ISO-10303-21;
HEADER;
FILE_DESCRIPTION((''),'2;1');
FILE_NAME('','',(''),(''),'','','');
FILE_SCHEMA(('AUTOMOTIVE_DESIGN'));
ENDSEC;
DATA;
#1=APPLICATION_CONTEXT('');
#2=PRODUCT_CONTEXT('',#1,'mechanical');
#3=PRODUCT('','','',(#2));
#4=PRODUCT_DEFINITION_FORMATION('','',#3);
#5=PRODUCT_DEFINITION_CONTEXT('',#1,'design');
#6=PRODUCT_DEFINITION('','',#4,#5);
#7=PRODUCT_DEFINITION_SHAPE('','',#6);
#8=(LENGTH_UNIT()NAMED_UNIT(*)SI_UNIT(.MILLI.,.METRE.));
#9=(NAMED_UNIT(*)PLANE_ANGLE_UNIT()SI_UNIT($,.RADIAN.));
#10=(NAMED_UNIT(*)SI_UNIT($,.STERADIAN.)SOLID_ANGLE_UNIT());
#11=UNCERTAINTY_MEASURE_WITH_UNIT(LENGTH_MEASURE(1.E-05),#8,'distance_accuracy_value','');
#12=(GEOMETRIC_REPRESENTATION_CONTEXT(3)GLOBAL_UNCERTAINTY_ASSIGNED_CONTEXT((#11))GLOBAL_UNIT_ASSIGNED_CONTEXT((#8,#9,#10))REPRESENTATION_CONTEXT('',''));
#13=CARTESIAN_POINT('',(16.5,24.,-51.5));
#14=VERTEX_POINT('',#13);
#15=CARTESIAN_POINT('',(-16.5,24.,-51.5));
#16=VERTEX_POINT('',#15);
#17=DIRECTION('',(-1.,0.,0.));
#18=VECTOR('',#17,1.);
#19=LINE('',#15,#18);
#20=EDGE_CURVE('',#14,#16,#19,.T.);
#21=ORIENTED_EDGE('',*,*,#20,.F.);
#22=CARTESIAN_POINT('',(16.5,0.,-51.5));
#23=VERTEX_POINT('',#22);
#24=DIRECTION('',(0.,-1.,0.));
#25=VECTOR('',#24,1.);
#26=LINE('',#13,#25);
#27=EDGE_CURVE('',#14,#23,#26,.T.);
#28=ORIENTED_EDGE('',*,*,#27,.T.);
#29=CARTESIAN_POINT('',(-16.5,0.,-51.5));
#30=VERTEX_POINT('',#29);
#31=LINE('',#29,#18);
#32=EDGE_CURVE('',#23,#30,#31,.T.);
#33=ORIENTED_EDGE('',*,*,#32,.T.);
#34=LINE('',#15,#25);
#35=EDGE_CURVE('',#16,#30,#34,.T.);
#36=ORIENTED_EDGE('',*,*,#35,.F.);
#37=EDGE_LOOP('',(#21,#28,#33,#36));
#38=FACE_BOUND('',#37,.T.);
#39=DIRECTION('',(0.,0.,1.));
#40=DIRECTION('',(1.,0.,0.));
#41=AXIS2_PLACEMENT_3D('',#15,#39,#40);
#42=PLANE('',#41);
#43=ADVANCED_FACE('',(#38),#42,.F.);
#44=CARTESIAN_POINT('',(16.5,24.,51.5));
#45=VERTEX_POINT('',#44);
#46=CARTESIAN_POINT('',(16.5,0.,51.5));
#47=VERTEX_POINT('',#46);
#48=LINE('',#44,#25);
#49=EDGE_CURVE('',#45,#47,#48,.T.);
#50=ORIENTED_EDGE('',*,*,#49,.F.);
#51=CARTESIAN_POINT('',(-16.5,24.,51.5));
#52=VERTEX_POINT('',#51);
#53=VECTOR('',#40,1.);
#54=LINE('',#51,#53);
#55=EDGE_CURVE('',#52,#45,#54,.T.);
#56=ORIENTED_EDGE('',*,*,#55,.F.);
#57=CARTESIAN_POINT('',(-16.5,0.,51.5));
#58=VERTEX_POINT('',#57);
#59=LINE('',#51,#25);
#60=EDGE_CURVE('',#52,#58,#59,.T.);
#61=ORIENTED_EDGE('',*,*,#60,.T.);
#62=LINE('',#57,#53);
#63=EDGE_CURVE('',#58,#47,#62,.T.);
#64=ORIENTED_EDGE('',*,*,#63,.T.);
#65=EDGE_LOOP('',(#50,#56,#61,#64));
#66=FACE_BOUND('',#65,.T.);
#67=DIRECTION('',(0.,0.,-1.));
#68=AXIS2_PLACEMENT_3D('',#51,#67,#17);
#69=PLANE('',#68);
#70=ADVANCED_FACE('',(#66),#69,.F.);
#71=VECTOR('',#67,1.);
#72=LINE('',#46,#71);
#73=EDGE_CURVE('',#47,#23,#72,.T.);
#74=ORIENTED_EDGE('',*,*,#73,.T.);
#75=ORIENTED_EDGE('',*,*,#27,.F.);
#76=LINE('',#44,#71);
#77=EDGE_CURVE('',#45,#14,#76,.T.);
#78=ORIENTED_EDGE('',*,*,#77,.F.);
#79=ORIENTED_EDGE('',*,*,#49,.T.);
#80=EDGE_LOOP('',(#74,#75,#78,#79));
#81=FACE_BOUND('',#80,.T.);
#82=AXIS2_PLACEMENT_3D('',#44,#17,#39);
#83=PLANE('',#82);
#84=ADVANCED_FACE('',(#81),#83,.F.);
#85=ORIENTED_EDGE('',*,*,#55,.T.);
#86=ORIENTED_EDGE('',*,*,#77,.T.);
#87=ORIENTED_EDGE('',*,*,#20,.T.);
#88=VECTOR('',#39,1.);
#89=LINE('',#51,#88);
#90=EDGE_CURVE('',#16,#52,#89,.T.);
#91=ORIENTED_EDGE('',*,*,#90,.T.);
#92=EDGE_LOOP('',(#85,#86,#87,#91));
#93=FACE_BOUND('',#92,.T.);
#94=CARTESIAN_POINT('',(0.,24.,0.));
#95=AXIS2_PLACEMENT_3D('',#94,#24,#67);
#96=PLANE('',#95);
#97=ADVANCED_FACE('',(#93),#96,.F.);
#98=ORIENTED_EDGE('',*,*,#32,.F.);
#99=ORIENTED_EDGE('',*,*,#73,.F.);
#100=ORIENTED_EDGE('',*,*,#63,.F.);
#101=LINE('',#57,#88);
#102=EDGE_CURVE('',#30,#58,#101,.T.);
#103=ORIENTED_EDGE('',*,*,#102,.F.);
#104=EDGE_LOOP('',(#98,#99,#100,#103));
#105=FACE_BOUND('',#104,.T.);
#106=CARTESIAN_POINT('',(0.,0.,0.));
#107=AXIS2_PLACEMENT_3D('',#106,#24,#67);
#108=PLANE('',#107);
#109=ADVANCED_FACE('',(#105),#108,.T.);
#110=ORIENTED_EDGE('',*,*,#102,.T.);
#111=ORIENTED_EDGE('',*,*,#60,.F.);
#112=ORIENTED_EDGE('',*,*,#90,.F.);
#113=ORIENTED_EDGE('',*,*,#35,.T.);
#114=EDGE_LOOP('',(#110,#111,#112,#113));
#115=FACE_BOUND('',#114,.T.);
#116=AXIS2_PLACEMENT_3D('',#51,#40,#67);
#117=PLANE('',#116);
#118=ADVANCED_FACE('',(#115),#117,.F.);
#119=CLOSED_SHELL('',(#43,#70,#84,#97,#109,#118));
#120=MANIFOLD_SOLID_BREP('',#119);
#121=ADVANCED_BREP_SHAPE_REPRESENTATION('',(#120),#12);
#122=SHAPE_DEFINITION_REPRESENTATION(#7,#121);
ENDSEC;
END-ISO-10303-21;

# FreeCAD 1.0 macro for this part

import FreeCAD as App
import Part
import Sketcher
from FreeCAD import Vector
Q = App.Units.Quantity


def add_polygon(sketch, points):
    """Adds a closed chain of lines whose ends are joined by coincident constraints."""
    first, n = sketch.GeometryCount, len(points)
    for a, b in zip(points, points[1:] + points[:1]):
        sketch.addGeometry(Part.LineSegment(App.Vector(*a, 0), App.Vector(*b, 0)), False)
    for i in range(n):
        sketch.addConstraint(Sketcher.Constraint("Coincident", first + i, 2, first + (i + 1) % n, 1))

doc = App.newDocument("Part")
body = doc.addObject("PartDesign::Body", "Body")

# Sketch on XZ plane
sketch1 = body.newObject("Sketcher::SketchObject", "Sketch")
sketch1.AttachmentSupport = (doc.getObject("XZ_Plane"), [""])
sketch1.MapMode = "FlatFace"
add_polygon(sketch1, [(-16.5, -51.5), (-16.5, 51.5), (16.5, 51.5), (16.5, -51.5)])  # lines 0-3
sketch1.addConstraint([
    Sketcher.Constraint("Vertical", 0),
    Sketcher.Constraint("Horizontal", 1),
    Sketcher.Constraint("Vertical", 2),
    Sketcher.Constraint("Horizontal", 3),
    Sketcher.Constraint("Symmetric", 0, 2, 2, 2, -1, 1),
    Sketcher.Constraint("DistanceX", 1, 1, 1, 2, Q("33 mm")),
    Sketcher.Constraint("DistanceY", 0, 1, 0, 2, Q("103 mm")),
])
pad1 = body.newObject("PartDesign::Pad", "Pad")
pad1.Profile = sketch1
pad1.Length = 24
pad1.Reversed = True

doc.recompute()
